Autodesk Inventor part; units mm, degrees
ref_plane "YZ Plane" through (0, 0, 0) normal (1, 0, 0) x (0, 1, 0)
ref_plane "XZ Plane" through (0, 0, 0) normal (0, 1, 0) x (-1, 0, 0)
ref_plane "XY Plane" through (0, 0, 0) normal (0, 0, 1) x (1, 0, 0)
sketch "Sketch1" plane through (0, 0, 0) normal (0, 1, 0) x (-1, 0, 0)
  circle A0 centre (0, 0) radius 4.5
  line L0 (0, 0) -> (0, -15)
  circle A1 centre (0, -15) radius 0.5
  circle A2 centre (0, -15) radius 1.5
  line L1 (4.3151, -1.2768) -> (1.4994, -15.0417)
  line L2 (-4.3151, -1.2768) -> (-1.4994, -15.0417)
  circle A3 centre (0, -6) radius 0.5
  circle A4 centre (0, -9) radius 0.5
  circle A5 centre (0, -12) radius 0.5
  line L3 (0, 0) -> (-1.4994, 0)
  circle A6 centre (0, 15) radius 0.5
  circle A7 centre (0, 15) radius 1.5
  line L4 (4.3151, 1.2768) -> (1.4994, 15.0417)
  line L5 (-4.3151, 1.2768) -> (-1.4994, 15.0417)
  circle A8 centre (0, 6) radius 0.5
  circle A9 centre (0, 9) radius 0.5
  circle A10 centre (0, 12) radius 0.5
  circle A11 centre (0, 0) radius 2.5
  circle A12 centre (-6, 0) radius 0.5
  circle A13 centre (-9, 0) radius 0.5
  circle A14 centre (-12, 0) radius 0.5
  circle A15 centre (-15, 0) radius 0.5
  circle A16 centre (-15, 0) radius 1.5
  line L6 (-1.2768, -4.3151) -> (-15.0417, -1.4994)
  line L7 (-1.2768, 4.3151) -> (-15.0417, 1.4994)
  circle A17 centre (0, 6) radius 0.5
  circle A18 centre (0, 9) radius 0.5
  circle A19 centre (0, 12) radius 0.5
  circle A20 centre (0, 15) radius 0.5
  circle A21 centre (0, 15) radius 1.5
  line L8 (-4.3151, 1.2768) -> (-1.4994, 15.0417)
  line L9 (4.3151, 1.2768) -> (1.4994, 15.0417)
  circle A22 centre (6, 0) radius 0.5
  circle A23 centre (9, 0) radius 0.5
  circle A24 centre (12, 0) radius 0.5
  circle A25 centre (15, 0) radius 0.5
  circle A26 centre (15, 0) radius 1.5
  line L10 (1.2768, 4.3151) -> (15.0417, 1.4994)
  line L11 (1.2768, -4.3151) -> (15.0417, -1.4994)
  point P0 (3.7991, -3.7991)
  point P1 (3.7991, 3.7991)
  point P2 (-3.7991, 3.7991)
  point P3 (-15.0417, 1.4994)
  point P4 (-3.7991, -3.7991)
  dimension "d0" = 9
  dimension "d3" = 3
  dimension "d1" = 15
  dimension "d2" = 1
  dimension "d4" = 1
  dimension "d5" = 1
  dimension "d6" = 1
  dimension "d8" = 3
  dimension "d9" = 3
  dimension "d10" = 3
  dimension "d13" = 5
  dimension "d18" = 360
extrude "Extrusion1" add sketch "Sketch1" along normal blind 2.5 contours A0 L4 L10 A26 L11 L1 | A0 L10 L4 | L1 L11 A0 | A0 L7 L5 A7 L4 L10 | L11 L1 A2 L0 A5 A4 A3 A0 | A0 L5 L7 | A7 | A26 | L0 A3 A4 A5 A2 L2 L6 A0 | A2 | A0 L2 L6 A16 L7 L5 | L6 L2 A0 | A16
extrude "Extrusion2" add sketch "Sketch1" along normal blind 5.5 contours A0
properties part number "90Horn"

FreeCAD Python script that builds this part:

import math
import FreeCAD as App
import Part
import Sketcher
Q = App.Units.Quantity

doc = App.newDocument("Part")
body = doc.addObject("PartDesign::Body", "Body")

sketch1 = body.newObject("Sketcher::SketchObject", "Sketch")
sketch1.AttachmentSupport = (doc.getObject("XZ_Plane"), [""])
sketch1.MapMode = "FlatFace"
sketch1.addGeometry(Part.LineSegment(App.Vector(-15, 1.5, 0), App.Vector(-3.8, 3.8, 0)), False)
sketch1.addGeometry(Part.LineSegment(App.Vector(-3.8, 3.8, 0), App.Vector(-1.5, 15, 0)), False)
sketch1.addGeometry(Part.ArcOfCircle(Part.Circle(App.Vector(0, 15, 0), App.Vector(0, 0, 1), 1.5), math.radians(2), math.radians(178)), False)
sketch1.addGeometry(Part.LineSegment(App.Vector(1.5, 15, 0), App.Vector(3.8, 3.8, 0)), False)
sketch1.addGeometry(Part.LineSegment(App.Vector(3.8, 3.8, 0), App.Vector(15, 1.5, 0)), False)
sketch1.addGeometry(Part.ArcOfCircle(Part.Circle(App.Vector(15, 0, 0), App.Vector(0, 0, 1), 1.5), math.radians(-88), math.radians(88)), False)
sketch1.addGeometry(Part.LineSegment(App.Vector(15, -1.5, 0), App.Vector(3.8, -3.8, 0)), False)
sketch1.addGeometry(Part.LineSegment(App.Vector(3.8, -3.8, 0), App.Vector(1.5, -15, 0)), False)
sketch1.addGeometry(Part.ArcOfCircle(Part.Circle(App.Vector(0, -15, 0), App.Vector(0, 0, 1), 1.5), math.radians(-178), math.radians(-2)), False)
sketch1.addGeometry(Part.LineSegment(App.Vector(-1.5, -15, 0), App.Vector(-3.8, -3.8, 0)), False)
sketch1.addGeometry(Part.LineSegment(App.Vector(-3.8, -3.8, 0), App.Vector(-15, -1.5, 0)), False)
sketch1.addGeometry(Part.ArcOfCircle(Part.Circle(App.Vector(-15, 0, 0), App.Vector(0, 0, 1), 1.5), math.radians(92), math.radians(268)), False)
sketch1.addGeometry(Part.Circle(App.Vector(0, 0, 0), App.Vector(0, 0, 1), 4.5), False)
sketch1.addGeometry(Part.Circle(App.Vector(-6, 0, 0), App.Vector(0, 0, 1), 0.5), False)
sketch1.addGeometry(Part.Circle(App.Vector(-9, 0, 0), App.Vector(0, 0, 1), 0.5), False)
sketch1.addGeometry(Part.Circle(App.Vector(-12, 0, 0), App.Vector(0, 0, 1), 0.5), False)
sketch1.addGeometry(Part.Circle(App.Vector(-15, 0, 0), App.Vector(0, 0, 1), 0.5), False)
sketch1.addGeometry(Part.Circle(App.Vector(0, 12, 0), App.Vector(0, 0, 1), 0.5), False)
sketch1.addGeometry(Part.Circle(App.Vector(0, 6, 0), App.Vector(0, 0, 1), 0.5), False)
sketch1.addGeometry(Part.Circle(App.Vector(0, 9, 0), App.Vector(0, 0, 1), 0.5), False)
sketch1.addGeometry(Part.Circle(App.Vector(0, -12, 0), App.Vector(0, 0, 1), 0.5), False)
sketch1.addGeometry(Part.Circle(App.Vector(0, -9, 0), App.Vector(0, 0, 1), 0.5), False)
sketch1.addGeometry(Part.Circle(App.Vector(0, -6, 0), App.Vector(0, 0, 1), 0.5), False)
sketch1.addGeometry(Part.Circle(App.Vector(0, 15, 0), App.Vector(0, 0, 1), 0.5), False)
sketch1.addGeometry(Part.Circle(App.Vector(0, -15, 0), App.Vector(0, 0, 1), 0.5), False)
sketch1.addGeometry(Part.Circle(App.Vector(6, 0, 0), App.Vector(0, 0, 1), 0.5), False)
sketch1.addGeometry(Part.Circle(App.Vector(12, 0, 0), App.Vector(0, 0, 1), 0.5), False)
sketch1.addGeometry(Part.Circle(App.Vector(9, 0, 0), App.Vector(0, 0, 1), 0.5), False)
sketch1.addGeometry(Part.Circle(App.Vector(15, 0, 0), App.Vector(0, 0, 1), 0.5), False)
sketch1.addConstraint(Sketcher.Constraint("Coincident", 0, 2, 1, 1))
sketch1.addConstraint(Sketcher.Constraint("Coincident", 1, 2, 2, 2))
sketch1.addConstraint(Sketcher.Constraint("Coincident", 2, 1, 3, 1))
sketch1.addConstraint(Sketcher.Constraint("Coincident", 3, 2, 4, 1))
sketch1.addConstraint(Sketcher.Constraint("Coincident", 4, 2, 5, 2))
sketch1.addConstraint(Sketcher.Constraint("Coincident", 5, 1, 6, 1))
sketch1.addConstraint(Sketcher.Constraint("Coincident", 6, 2, 7, 1))
sketch1.addConstraint(Sketcher.Constraint("Coincident", 7, 2, 8, 2))
sketch1.addConstraint(Sketcher.Constraint("Coincident", 8, 1, 9, 1))
sketch1.addConstraint(Sketcher.Constraint("Coincident", 9, 2, 10, 1))
sketch1.addConstraint(Sketcher.Constraint("Coincident", 10, 2, 11, 2))
sketch1.addConstraint(Sketcher.Constraint("Coincident", 11, 1, 0, 1))
sketch1.addConstraint(Sketcher.Constraint("Coincident", 12, 3, -1, 1))
sketch1.addConstraint(Sketcher.Constraint("Coincident", 16, 3, 11, 3))
sketch1.addConstraint(Sketcher.Constraint("Coincident", 23, 3, 2, 3))
sketch1.addConstraint(Sketcher.Constraint("Coincident", 24, 3, 8, 3))
sketch1.addConstraint(Sketcher.Constraint("Coincident", 28, 3, 5, 3))
sketch1.addConstraint(Sketcher.Constraint("Equal", 2, 5))
sketch1.addConstraint(Sketcher.Constraint("Equal", 5, 8))
sketch1.addConstraint(Sketcher.Constraint("Equal", 8, 11))
sketch1.addConstraint(Sketcher.Constraint("Equal", 13, 14))
sketch1.addConstraint(Sketcher.Constraint("Equal", 14, 15))
sketch1.addConstraint(Sketcher.Constraint("Equal", 15, 16))
sketch1.addConstraint(Sketcher.Constraint("Equal", 16, 17))
sketch1.addConstraint(Sketcher.Constraint("Equal", 17, 18))
sketch1.addConstraint(Sketcher.Constraint("Equal", 18, 19))
sketch1.addConstraint(Sketcher.Constraint("Equal", 19, 20))
sketch1.addConstraint(Sketcher.Constraint("Equal", 20, 21))
sketch1.addConstraint(Sketcher.Constraint("Equal", 21, 22))
sketch1.addConstraint(Sketcher.Constraint("Equal", 22, 23))
sketch1.addConstraint(Sketcher.Constraint("Equal", 23, 24))
sketch1.addConstraint(Sketcher.Constraint("Equal", 24, 25))
sketch1.addConstraint(Sketcher.Constraint("Equal", 25, 26))
sketch1.addConstraint(Sketcher.Constraint("Equal", 26, 27))
sketch1.addConstraint(Sketcher.Constraint("Equal", 27, 28))
sketch1.addConstraint(Sketcher.Constraint("Symmetric", 2, 3, 8, 3, -1, 1))
sketch1.addConstraint(Sketcher.Constraint("Symmetric", 5, 3, 11, 3, -1, 1))
sketch1.addConstraint(Sketcher.Constraint("Symmetric", 17, 3, 20, 3, -1, 1))
sketch1.addConstraint(Sketcher.Constraint("Symmetric", 19, 3, 21, 3, -1, 1))
sketch1.addConstraint(Sketcher.Constraint("Symmetric", 18, 3, 22, 3, -1, 1))
sketch1.addConstraint(Sketcher.Constraint("Symmetric", 13, 3, 25, 3, -1, 1))
sketch1.addConstraint(Sketcher.Constraint("Symmetric", 15, 3, 26, 3, -1, 1))
sketch1.addConstraint(Sketcher.Constraint("Symmetric", 14, 3, 27, 3, -1, 1))
sketch1.addConstraint(Sketcher.Constraint("Symmetric", 0, 2, 6, 2, -1, 1))
sketch1.addConstraint(Sketcher.Constraint("Symmetric", 3, 2, 9, 2, -1, 1))
sketch1.addConstraint(Sketcher.Constraint("Symmetric", 1, 2, 2, 1, -2))
sketch1.addConstraint(Sketcher.Constraint("Symmetric", 0, 2, 3, 2, -2))
sketch1.addConstraint(Sketcher.Constraint("Symmetric", 5, 1, 10, 2, -2))
sketch1.addConstraint(Sketcher.Constraint("PointOnObject", 13, 3, -1))
sketch1.addConstraint(Sketcher.Constraint("PointOnObject", 14, 3, -1))
sketch1.addConstraint(Sketcher.Constraint("PointOnObject", 15, 3, -1))
sketch1.addConstraint(Sketcher.Constraint("PointOnObject", 17, 3, -2))
sketch1.addConstraint(Sketcher.Constraint("PointOnObject", 18, 3, -2))
sketch1.addConstraint(Sketcher.Constraint("PointOnObject", 19, 3, -2))
sketch1.addConstraint(Sketcher.Constraint("Perpendicular", 0, 3))
sketch1.addConstraint(Sketcher.Constraint("Perpendicular", 1, 4))
sketch1.addConstraint(Sketcher.Constraint("Perpendicular", 3, 6))
sketch1.addConstraint(Sketcher.Constraint("Perpendicular", 4, 7))
sketch1.addConstraint(Sketcher.Constraint("Perpendicular", 6, 9))
sketch1.addConstraint(Sketcher.Constraint("Equal", 0, 1))
sketch1.addConstraint(Sketcher.Constraint("Diameter", 12, Q("9 mm")))
sketch1.addConstraint(Sketcher.Constraint("Diameter", 13, Q("1 mm")))
sketch1.addConstraint(Sketcher.Constraint("Radius", 2, Q("1.5 mm")))
sketch1.addConstraint(Sketcher.Constraint("DistanceY", -1, 1, 2, 3, Q("15 mm")))
sketch1.addConstraint(Sketcher.Constraint("DistanceX", -1, 1, 5, 3, Q("15 mm")))
sketch1.addConstraint(Sketcher.Constraint("DistanceX", 14, 3, -1, 1, Q("9 mm")))
sketch1.addConstraint(Sketcher.Constraint("DistanceY", -1, 1, 19, 3, Q("9 mm")))
sketch1.addConstraint(Sketcher.Constraint("DistanceX", 11, 3, 13, 3, Q("9 mm")))
sketch1.addConstraint(Sketcher.Constraint("DistanceX", 11, 3, 15, 3, Q("3 mm")))
sketch1.addConstraint(Sketcher.Constraint("DistanceY", 17, 3, 2, 3, Q("3 mm")))
sketch1.addConstraint(Sketcher.Constraint("DistanceY", 18, 3, 2, 3, Q("9 mm")))
sketch1.addConstraint(Sketcher.Constraint("Angle", 0, Q("11.5607 deg")))
sketch1.addConstraint(Sketcher.Constraint("Distance", 0, Q("11.4754 mm")))
pad1 = body.newObject("PartDesign::Pad", "Pad")
pad1.Profile = sketch1
pad1.Length = 2.5
pad1.Reversed = True

sketch2 = body.newObject("Sketcher::SketchObject", "Sketch001")
sketch2.AttachmentSupport = (doc.getObject("XZ_Plane"), [""])
sketch2.MapMode = "FlatFace"
sketch2.addGeometry(Part.Circle(App.Vector(0, 0, 0), App.Vector(0, 0, 1), 4.5), False)
sketch2.addGeometry(Part.Circle(App.Vector(0, 0, 0), App.Vector(0, 0, 1), 2.5), False)
sketch2.addConstraint(Sketcher.Constraint("Coincident", 0, 3, -1, 1))
sketch2.addConstraint(Sketcher.Constraint("Coincident", 1, 3, -1, 1))
sketch2.addConstraint(Sketcher.Constraint("Diameter", 0, Q("9 mm")))
sketch2.addConstraint(Sketcher.Constraint("Diameter", 1, Q("5 mm")))
pad2 = body.newObject("PartDesign::Pad", "Pad001")
pad2.Profile = sketch2
pad2.Length = 5.5
pad2.Reversed = True

doc.recompute()
